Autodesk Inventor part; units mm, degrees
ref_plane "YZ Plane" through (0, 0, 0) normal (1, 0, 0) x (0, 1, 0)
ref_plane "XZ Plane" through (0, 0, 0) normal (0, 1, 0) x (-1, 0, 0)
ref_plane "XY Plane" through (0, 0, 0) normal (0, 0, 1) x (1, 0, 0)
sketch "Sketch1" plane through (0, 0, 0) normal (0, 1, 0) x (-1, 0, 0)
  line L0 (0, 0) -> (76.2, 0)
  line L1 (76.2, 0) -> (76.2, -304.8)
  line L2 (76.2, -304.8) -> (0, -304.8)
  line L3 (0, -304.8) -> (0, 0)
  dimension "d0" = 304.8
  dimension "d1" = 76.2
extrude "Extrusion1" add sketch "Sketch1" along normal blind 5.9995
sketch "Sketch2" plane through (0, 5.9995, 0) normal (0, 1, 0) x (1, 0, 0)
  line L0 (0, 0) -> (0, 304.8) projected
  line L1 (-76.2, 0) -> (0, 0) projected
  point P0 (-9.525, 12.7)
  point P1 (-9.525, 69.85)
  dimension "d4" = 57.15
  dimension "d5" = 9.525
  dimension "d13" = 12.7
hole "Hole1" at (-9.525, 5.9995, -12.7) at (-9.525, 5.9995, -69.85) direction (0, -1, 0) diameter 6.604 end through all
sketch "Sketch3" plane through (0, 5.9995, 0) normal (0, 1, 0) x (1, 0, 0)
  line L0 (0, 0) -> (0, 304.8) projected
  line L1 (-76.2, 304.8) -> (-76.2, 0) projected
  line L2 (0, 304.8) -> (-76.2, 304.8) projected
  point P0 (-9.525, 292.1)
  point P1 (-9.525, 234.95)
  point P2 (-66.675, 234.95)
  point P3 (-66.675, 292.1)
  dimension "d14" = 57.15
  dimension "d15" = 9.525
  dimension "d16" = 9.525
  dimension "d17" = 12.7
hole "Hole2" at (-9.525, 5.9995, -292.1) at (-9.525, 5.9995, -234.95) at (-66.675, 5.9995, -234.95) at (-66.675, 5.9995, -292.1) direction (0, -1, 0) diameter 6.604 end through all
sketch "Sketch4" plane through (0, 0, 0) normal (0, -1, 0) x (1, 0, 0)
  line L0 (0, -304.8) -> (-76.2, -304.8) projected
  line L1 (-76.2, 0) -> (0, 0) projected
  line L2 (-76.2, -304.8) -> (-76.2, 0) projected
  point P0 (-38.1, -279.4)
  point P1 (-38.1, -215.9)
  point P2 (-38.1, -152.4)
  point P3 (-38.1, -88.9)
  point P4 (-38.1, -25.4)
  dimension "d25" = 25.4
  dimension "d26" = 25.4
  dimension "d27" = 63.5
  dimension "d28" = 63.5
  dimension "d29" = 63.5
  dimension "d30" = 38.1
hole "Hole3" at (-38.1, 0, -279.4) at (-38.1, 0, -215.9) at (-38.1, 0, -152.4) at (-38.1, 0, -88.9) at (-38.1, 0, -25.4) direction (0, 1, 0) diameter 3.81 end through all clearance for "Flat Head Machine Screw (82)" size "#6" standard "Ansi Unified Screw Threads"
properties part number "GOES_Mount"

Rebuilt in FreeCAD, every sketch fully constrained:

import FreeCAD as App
import Part
import Sketcher

V = App.Vector
Q = App.Units.Quantity


def add_polygon(sketch, points):
    """Adds a closed chain of lines whose ends are joined by coincident constraints."""
    first, n = sketch.GeometryCount, len(points)
    for a, b in zip(points, points[1:] + points[:1]):
        sketch.addGeometry(Part.LineSegment(App.Vector(*a, 0), App.Vector(*b, 0)), False)
    for i in range(n):
        sketch.addConstraint(Sketcher.Constraint("Coincident", first + i, 2, first + (i + 1) % n, 1))

doc = App.newDocument("Part")
body = doc.addObject("PartDesign::Body", "Body")

# Sketch on XZ plane
sketch1 = body.newObject("Sketcher::SketchObject", "Sketch")
sketch1.AttachmentSupport = (doc.getObject("XZ_Plane"), [""])
sketch1.MapMode = "FlatFace"
add_polygon(sketch1, [(-76, 0), (0, 0), (0, -305), (-76, -305)])  # lines 0-3
sketch1.addConstraint([
    Sketcher.Constraint("Horizontal", 0),
    Sketcher.Constraint("Vertical", 1),
    Sketcher.Constraint("Horizontal", 2),
    Sketcher.Constraint("Vertical", 3),
    Sketcher.Constraint("Coincident", 0, 2, -1, 1),
    Sketcher.Constraint("DistanceX", 0, 1, 0, 2, Q("3 in")),
    Sketcher.Constraint("DistanceY", 1, 2, 1, 1, Q("12 in")),
])
pad1 = body.newObject("PartDesign::Pad", "Pad")
pad1.Profile = sketch1
pad1.Length = Q("0.2362008 in")
pad1.Reversed = True

# Sketch on XZ plane
sketch2 = body.newObject("Sketcher::SketchObject", "Sketch001")
sketch2.AttachmentSupport = (doc.getObject("XZ_Plane"), [""])
sketch2.MapMode = "FlatFace"
sketch2.AttachmentOffset = App.Placement(V(0, 0, -0.2362008 * 25.4), App.Rotation())
sketch2.addGeometry([
    Part.Circle(V(-9.5, -12.7, 0), V(0, 0, 1), 3.3),
    Part.Circle(V(-9.5, -69.8, 0), V(0, 0, 1), 3.3),
], False)
sketch2.addConstraint([
    Sketcher.Constraint("Equal", 0, 1),
    Sketcher.Constraint("Vertical", 0, 3, 1, 3),
    Sketcher.Constraint("Diameter", 0, Q("0.26 in")),
    Sketcher.Constraint("DistanceY", 0, 3, -1, 1, Q("0.5 in")),
    Sketcher.Constraint("DistanceY", 1, 3, -1, 1, Q("2.75 in")),
    Sketcher.Constraint("DistanceX", 0, 3, -1, 1, Q("0.375 in")),
])
doc.recompute()
hole = body.newObject("PartDesign::Hole", "Hole")
hole.Profile = sketch2
hole.ThreadType = "None"
hole.Diameter = Q("0.26 in")
hole.DepthType = "ThroughAll"
hole.Reversed = True

# Sketch on XZ plane
sketch3 = body.newObject("Sketcher::SketchObject", "Sketch002")
sketch3.AttachmentSupport = (doc.getObject("XZ_Plane"), [""])
sketch3.MapMode = "FlatFace"
sketch3.AttachmentOffset = App.Placement(V(0, 0, -0.2362008 * 25.4), App.Rotation())
sketch3.addGeometry([
    Part.Circle(V(-9.5, -292.1, 0), V(0, 0, 1), 3.3),
    Part.Circle(V(-9.5, -234.9, 0), V(0, 0, 1), 3.3),
    Part.Circle(V(-66.7, -234.9, 0), V(0, 0, 1), 3.3),
    Part.Circle(V(-66.7, -292.1, 0), V(0, 0, 1), 3.3),
], False)
sketch3.addConstraint([
    Sketcher.Constraint("Equal", 0, 1),
    Sketcher.Constraint("Equal", 1, 2),
    Sketcher.Constraint("Equal", 2, 3),
    Sketcher.Constraint("Horizontal", 1, 3, 2, 3),
    Sketcher.Constraint("Horizontal", 0, 3, 3, 3),
    Sketcher.Constraint("Vertical", 0, 3, 1, 3),
    Sketcher.Constraint("Vertical", 2, 3, 3, 3),
    Sketcher.Constraint("Diameter", 0, Q("0.26 in")),
    Sketcher.Constraint("DistanceY", 0, 3, -1, 1, Q("11.5 in")),
    Sketcher.Constraint("DistanceY", 1, 3, -1, 1, Q("9.25 in")),
    Sketcher.Constraint("DistanceX", 2, 3, 1, 3, Q("2.25 in")),
    Sketcher.Constraint("DistanceX", 0, 3, -1, 1, Q("0.375 in")),
])
doc.recompute()
hole2 = body.newObject("PartDesign::Hole", "Hole001")
hole2.Profile = sketch3
hole2.ThreadType = "None"
hole2.Diameter = Q("0.26 in")
hole2.DepthType = "ThroughAll"
hole2.Reversed = True

# Sketch on XZ plane
sketch4 = body.newObject("Sketcher::SketchObject", "Sketch003")
sketch4.AttachmentSupport = (doc.getObject("XZ_Plane"), [""])
sketch4.MapMode = "FlatFace"
sketch4.addGeometry([
    Part.Circle(V(-38.1, -279.4, 0), V(0, 0, 1), 1.9),  # 0
    Part.Circle(V(-38.1, -215.9, 0), V(0, 0, 1), 1.9),  # 1
    Part.Circle(V(-38.1, -152.4, 0), V(0, 0, 1), 1.9),  # 2
    Part.Circle(V(-38.1, -88.9, 0), V(0, 0, 1), 1.9),  # 3
    Part.Circle(V(-38.1, -25.4, 0), V(0, 0, 1), 1.9),  # 4
], False)
sketch4.addConstraint([
    Sketcher.Constraint("Equal", 0, 1),
    Sketcher.Constraint("Equal", 1, 2),
    Sketcher.Constraint("Equal", 2, 3),
    Sketcher.Constraint("Equal", 3, 4),
    Sketcher.Constraint("Vertical", 0, 3, 1, 3),
    Sketcher.Constraint("Vertical", 1, 3, 2, 3),
    Sketcher.Constraint("Vertical", 2, 3, 3, 3),
    Sketcher.Constraint("Vertical", 3, 3, 4, 3),
    Sketcher.Constraint("Diameter", 0, Q("0.15 in")),
    Sketcher.Constraint("DistanceY", 0, 3, -1, 1, Q("11 in")),
    Sketcher.Constraint("DistanceY", 2, 3, -1, 1, Q("6 in")),
    Sketcher.Constraint("DistanceY", 4, 3, -1, 1, Q("1 in")),
    Sketcher.Constraint("DistanceY", 1, 3, 3, 3, Q("5 in")),
    Sketcher.Constraint("DistanceX", 0, 3, -1, 1, Q("1.5 in")),
    Sketcher.Constraint("DistanceY", 1, 3, -1, 1, Q("8.5 in")),
])
doc.recompute()
hole3 = body.newObject("PartDesign::Hole", "Hole002")
hole3.Profile = sketch4
hole3.ThreadType = "None"
hole3.Diameter = Q("0.15 in")
hole3.DepthType = "ThroughAll"

doc.recompute()
